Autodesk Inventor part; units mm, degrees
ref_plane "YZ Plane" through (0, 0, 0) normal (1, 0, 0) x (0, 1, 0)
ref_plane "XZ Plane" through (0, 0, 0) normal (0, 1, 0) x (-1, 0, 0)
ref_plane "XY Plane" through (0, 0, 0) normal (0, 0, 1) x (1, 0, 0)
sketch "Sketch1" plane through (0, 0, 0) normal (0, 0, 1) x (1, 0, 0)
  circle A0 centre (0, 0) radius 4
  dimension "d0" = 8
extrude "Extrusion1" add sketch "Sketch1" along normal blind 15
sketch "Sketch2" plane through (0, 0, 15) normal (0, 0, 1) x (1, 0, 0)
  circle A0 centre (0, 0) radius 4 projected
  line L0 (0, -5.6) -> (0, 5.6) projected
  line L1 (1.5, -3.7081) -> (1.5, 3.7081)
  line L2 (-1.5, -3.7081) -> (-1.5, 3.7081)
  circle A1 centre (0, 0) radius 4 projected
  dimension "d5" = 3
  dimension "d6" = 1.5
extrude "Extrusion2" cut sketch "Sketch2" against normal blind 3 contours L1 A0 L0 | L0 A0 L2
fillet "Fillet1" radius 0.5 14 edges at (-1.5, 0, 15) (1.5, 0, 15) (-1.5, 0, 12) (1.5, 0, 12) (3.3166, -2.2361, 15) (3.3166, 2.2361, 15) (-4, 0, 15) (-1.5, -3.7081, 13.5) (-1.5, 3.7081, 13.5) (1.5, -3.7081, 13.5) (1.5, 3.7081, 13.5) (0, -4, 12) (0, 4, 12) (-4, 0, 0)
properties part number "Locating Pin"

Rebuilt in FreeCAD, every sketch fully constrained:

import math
import FreeCAD as App
import Part
import Sketcher

V = App.Vector

doc = App.newDocument("Part")
params = doc.addObject("Spreadsheet::Sheet", "Params")
for row, (alias, value) in enumerate([
    ("sketch1_diameter", "8 mm"),
    ("pad1_length", "15 mm"),
    ("sketch2_radius", "4 mm"),
    ("pocket1_length", "3 mm"),
    ("fillet_radius", "0.5 mm"),
], start=1):
    params.set(f"A{row}", alias)
    params.set(f"B{row}", "=" + value)
    params.setAlias(f"B{row}", alias)

body = doc.addObject("PartDesign::Body", "Body")

# Sketch on XY plane
sketch1 = body.newObject("Sketcher::SketchObject", "Sketch")
sketch1.AttachmentSupport = (doc.getObject("XY_Plane"), [""])
sketch1.MapMode = "FlatFace"
sketch1.addGeometry(Part.Circle(V(0, 0, 0), V(0, 0, 1), 4), False)
sketch1.addConstraint([
    Sketcher.Constraint("Coincident", 0, 3, -1, 1),
    Sketcher.Constraint("Diameter", 0, 8.0),
])
sketch1.setExpression("Constraints[1]", "Params.sketch1_diameter")
pad1 = body.newObject("PartDesign::Pad", "Pad")
pad1.Profile = sketch1
pad1.setExpression("Length", "Params.pad1_length")

# Sketch on XY plane
sketch2 = body.newObject("Sketcher::SketchObject", "Sketch001")
sketch2.AttachmentSupport = (doc.getObject("XY_Plane"), [""])
sketch2.MapMode = "FlatFace"
sketch2.AttachmentOffset = App.Placement(V(0, 0, 15), App.Rotation())
sketch2.addGeometry([
    Part.LineSegment(V(1.5, -3.7, 0), V(1.5, 3.7, 0)),
    Part.ArcOfCircle(Part.Circle(V(0, 0, 0), V(0, 0, 1), 4), math.radians(68), math.radians(112)),
    Part.LineSegment(V(-1.5, 3.7, 0), V(-1.5, -3.7, 0)),
    Part.ArcOfCircle(Part.Circle(V(0, 0, 0), V(0, 0, 1), 4), math.radians(-112), math.radians(-68)),
], False)
sketch2.addConstraint([
    Sketcher.Constraint("Coincident", 0, 2, 1, 1),
    Sketcher.Constraint("Coincident", 1, 2, 2, 1),
    Sketcher.Constraint("Coincident", 2, 2, 3, 1),
    Sketcher.Constraint("Coincident", 3, 2, 0, 1),
    Sketcher.Constraint("Vertical", 0),
    Sketcher.Constraint("Vertical", 2),
    Sketcher.Constraint("Coincident", 1, 3, -1, 1),
    Sketcher.Constraint("Coincident", 3, 3, -1, 1),
    Sketcher.Constraint("Equal", 1, 3),
    Sketcher.Constraint("Horizontal", 0, 2, 1, 2),
    Sketcher.Constraint("Radius", 1, 4.0),
    Sketcher.Constraint("DistanceX", 1, 2, 0, 2, 3.0),
])
sketch2.setExpression("Constraints[10]", "Params.sketch2_radius")
pocket1 = body.newObject("PartDesign::Pocket", "Pocket")
pocket1.Profile = sketch2
pocket1.setExpression("Length", "Params.pocket1_length")
doc.recompute()

fillet = body.newObject("PartDesign::Fillet", "Fillet")
fillet.Base = (pocket1, ["Edge1"])
fillet.UseAllEdges = True
fillet.setExpression("Radius", "Params.fillet_radius")

doc.recompute()
